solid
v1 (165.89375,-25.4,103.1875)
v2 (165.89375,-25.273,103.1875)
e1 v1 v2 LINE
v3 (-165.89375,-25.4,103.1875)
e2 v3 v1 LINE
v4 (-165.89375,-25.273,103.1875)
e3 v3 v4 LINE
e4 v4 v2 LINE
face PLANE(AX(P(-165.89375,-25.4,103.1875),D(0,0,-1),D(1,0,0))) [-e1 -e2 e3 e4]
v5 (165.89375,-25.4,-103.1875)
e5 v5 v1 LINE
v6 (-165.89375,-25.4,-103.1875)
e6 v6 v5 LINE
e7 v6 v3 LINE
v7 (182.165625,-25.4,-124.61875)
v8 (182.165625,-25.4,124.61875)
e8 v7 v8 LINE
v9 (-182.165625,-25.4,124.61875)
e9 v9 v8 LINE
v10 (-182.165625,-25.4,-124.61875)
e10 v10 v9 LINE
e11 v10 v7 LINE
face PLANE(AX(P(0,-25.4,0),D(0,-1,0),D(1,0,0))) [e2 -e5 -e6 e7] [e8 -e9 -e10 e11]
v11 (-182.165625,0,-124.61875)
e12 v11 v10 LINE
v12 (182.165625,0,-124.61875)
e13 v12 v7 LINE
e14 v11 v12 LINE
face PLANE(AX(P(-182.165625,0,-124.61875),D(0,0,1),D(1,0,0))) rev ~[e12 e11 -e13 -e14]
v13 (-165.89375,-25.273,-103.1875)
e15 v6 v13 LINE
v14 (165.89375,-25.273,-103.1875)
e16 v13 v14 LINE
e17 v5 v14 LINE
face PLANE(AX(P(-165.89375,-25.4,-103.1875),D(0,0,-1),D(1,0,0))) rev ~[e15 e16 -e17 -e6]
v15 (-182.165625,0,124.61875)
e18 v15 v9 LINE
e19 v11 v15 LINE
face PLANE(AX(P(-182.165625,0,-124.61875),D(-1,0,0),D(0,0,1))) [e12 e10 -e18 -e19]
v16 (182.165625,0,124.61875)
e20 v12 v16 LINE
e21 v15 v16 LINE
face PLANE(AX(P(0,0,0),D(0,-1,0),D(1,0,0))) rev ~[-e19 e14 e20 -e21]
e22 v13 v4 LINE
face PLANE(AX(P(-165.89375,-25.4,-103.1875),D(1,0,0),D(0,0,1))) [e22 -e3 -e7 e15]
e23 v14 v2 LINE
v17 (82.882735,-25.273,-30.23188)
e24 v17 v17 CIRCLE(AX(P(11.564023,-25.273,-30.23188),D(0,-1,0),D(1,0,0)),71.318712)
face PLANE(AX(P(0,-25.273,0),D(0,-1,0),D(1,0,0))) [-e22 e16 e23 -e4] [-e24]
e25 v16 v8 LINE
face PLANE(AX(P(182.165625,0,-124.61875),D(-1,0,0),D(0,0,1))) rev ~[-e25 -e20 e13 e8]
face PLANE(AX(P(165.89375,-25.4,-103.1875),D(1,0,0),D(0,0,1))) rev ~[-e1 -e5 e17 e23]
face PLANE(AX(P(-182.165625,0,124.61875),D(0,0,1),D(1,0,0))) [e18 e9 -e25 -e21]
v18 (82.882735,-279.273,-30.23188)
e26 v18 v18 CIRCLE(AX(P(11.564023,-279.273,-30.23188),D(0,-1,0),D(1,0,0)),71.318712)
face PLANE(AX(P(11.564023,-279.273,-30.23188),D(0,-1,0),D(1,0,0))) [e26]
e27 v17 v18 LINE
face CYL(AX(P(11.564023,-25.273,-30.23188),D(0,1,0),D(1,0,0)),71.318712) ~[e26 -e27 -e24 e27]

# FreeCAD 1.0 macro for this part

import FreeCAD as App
import Part
import Sketcher
from FreeCAD import Vector
Q = App.Units.Quantity

doc = App.newDocument("Part")
params = doc.addObject("Spreadsheet::Sheet", "Params")
for row, (alias, value) in enumerate([
    ("sketch1_width", "14.34375 in"),
    ("sketch1_height", "9.8125 in"),
    ("pad1_length", "1 in"),
    ("sketch2_width", "13.0625 in"),
    ("sketch2_height", "8.125 in"),
    ("pocket1_length", "0.005 in"),
    ("pad2_length", "10 in"),
], start=1):
    params.set(f"A{row}", alias)
    params.set(f"B{row}", "=" + value)
    params.setAlias(f"B{row}", alias)

body = doc.addObject("PartDesign::Body", "Body")

sketch1 = doc.addObject("Sketcher::SketchObject", "Sketch")
body.addObject(sketch1)
sketch1.AttachmentSupport = (doc.XZ_Plane, [""])
sketch1.MapMode = "FlatFace"
sketch1.addGeometry([
    Part.LineSegment(Vector(-182, 125, 0), Vector(-182, -125, 0)),
    Part.LineSegment(Vector(-182, -125, 0), Vector(182, -125, 0)),
    Part.LineSegment(Vector(182, -125, 0), Vector(182, 125, 0)),
    Part.LineSegment(Vector(182, 125, 0), Vector(-182, 125, 0)),
], False)
sketch1.addConstraint([
    Sketcher.Constraint("Coincident", 0, 2, 1, 1),
    Sketcher.Constraint("Coincident", 1, 2, 2, 1),
    Sketcher.Constraint("Coincident", 2, 2, 3, 1),
    Sketcher.Constraint("Coincident", 3, 2, 0, 1),
    Sketcher.Constraint("Vertical", 0),
    Sketcher.Constraint("Horizontal", 1),
    Sketcher.Constraint("Vertical", 2),
    Sketcher.Constraint("Horizontal", 3),
    Sketcher.Constraint("Symmetric", 0, 2, 2, 2, -1, 1),
    Sketcher.Constraint("DistanceX", 1, 1, 1, 2, Q("14.34375 in")),
    Sketcher.Constraint("DistanceY", 0, 2, 0, 1, Q("9.8125 in")),
])
sketch1.setExpression("Constraints[9]", "Params.sketch1_width")
sketch1.setExpression("Constraints[10]", "Params.sketch1_height")
pad1 = doc.addObject("PartDesign::Pad", "Pad")
body.addObject(pad1)
pad1.Profile = sketch1
pad1.setExpression("Length", "Params.pad1_length")

sketch2 = doc.addObject("Sketcher::SketchObject", "Sketch001")
body.addObject(sketch2)
sketch2.AttachmentSupport = (doc.XZ_Plane, [""])
sketch2.MapMode = "FlatFace"
sketch2.AttachmentOffset = App.Placement(Vector(0, 0, 1 * 25.4), App.Rotation())
sketch2.addGeometry([
    Part.LineSegment(Vector(-166, 103, 0), Vector(-166, -103, 0)),
    Part.LineSegment(Vector(-166, -103, 0), Vector(166, -103, 0)),
    Part.LineSegment(Vector(166, -103, 0), Vector(166, 103, 0)),
    Part.LineSegment(Vector(166, 103, 0), Vector(-166, 103, 0)),
], False)
sketch2.addConstraint([
    Sketcher.Constraint("Coincident", 0, 2, 1, 1),
    Sketcher.Constraint("Coincident", 1, 2, 2, 1),
    Sketcher.Constraint("Coincident", 2, 2, 3, 1),
    Sketcher.Constraint("Coincident", 3, 2, 0, 1),
    Sketcher.Constraint("Vertical", 0),
    Sketcher.Constraint("Horizontal", 1),
    Sketcher.Constraint("Vertical", 2),
    Sketcher.Constraint("Horizontal", 3),
    Sketcher.Constraint("Symmetric", 0, 2, 2, 2, -1, 1),
    Sketcher.Constraint("DistanceX", 1, 1, 1, 2, Q("13.0625 in")),
    Sketcher.Constraint("DistanceY", 0, 2, 0, 1, Q("8.125 in")),
])
sketch2.setExpression("Constraints[9]", "Params.sketch2_width")
sketch2.setExpression("Constraints[10]", "Params.sketch2_height")
pocket1 = doc.addObject("PartDesign::Pocket", "Pocket")
body.addObject(pocket1)
pocket1.Profile = sketch2
pocket1.setExpression("Length", "Params.pocket1_length")

sketch3 = doc.addObject("Sketcher::SketchObject", "Sketch002")
body.addObject(sketch3)
sketch3.AttachmentSupport = (doc.XZ_Plane, [""])
sketch3.MapMode = "FlatFace"
sketch3.AttachmentOffset = App.Placement(Vector(0, 0, 0.995 * 25.4), App.Rotation())
sketch3.addGeometry(Part.Circle(Vector(12, -30, 0), Vector(0, 0, 1), 71), False)
sketch3.addConstraint([
    Sketcher.Constraint("Diameter", 0, Q("142.637424 mm")),
    Sketcher.Constraint("DistanceY", 0, 3, -1, 1, Q("30.23188 mm")),
    Sketcher.Constraint("DistanceX", -1, 1, 0, 3, Q("11.564023 mm")),
])
pad2 = doc.addObject("PartDesign::Pad", "Pad001")
body.addObject(pad2)
pad2.Profile = sketch3
pad2.setExpression("Length", "Params.pad2_length")

doc.recompute()
